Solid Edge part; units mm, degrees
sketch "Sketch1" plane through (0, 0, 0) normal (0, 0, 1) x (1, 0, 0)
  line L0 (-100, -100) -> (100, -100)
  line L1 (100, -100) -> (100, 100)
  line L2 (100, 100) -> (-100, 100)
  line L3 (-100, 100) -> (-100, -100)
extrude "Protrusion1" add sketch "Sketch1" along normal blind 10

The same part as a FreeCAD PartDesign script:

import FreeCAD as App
import Part
import Sketcher

V = App.Vector

doc = App.newDocument("Part")
body = doc.addObject("PartDesign::Body", "Body")

sketch1 = body.newObject("Sketcher::SketchObject", "Sketch")
sketch1.AttachmentSupport = (doc.getObject("XY_Plane"), [""])
sketch1.MapMode = "FlatFace"
sketch1.addGeometry([
    Part.LineSegment(V(-100, 100, 0), V(-100, -100, 0)),
    Part.LineSegment(V(-100, -100, 0), V(100, -100, 0)),
    Part.LineSegment(V(100, -100, 0), V(100, 100, 0)),
    Part.LineSegment(V(100, 100, 0), V(-100, 100, 0)),
], False)
sketch1.addConstraint([
    Sketcher.Constraint("Coincident", 0, 2, 1, 1),
    Sketcher.Constraint("Coincident", 1, 2, 2, 1),
    Sketcher.Constraint("Coincident", 2, 2, 3, 1),
    Sketcher.Constraint("Coincident", 3, 2, 0, 1),
    Sketcher.Constraint("Vertical", 0),
    Sketcher.Constraint("Horizontal", 1),
    Sketcher.Constraint("Vertical", 2),
    Sketcher.Constraint("Horizontal", 3),
    Sketcher.Constraint("Symmetric", 0, 2, 2, 2, -1, 1),
    Sketcher.Constraint("Equal", 3, 0),
    Sketcher.Constraint("DistanceX", 1, 1, 1, 2, 200.0),
])
pad1 = body.newObject("PartDesign::Pad", "Pad")
pad1.Profile = sketch1
pad1.Length = 10

doc.recompute()
